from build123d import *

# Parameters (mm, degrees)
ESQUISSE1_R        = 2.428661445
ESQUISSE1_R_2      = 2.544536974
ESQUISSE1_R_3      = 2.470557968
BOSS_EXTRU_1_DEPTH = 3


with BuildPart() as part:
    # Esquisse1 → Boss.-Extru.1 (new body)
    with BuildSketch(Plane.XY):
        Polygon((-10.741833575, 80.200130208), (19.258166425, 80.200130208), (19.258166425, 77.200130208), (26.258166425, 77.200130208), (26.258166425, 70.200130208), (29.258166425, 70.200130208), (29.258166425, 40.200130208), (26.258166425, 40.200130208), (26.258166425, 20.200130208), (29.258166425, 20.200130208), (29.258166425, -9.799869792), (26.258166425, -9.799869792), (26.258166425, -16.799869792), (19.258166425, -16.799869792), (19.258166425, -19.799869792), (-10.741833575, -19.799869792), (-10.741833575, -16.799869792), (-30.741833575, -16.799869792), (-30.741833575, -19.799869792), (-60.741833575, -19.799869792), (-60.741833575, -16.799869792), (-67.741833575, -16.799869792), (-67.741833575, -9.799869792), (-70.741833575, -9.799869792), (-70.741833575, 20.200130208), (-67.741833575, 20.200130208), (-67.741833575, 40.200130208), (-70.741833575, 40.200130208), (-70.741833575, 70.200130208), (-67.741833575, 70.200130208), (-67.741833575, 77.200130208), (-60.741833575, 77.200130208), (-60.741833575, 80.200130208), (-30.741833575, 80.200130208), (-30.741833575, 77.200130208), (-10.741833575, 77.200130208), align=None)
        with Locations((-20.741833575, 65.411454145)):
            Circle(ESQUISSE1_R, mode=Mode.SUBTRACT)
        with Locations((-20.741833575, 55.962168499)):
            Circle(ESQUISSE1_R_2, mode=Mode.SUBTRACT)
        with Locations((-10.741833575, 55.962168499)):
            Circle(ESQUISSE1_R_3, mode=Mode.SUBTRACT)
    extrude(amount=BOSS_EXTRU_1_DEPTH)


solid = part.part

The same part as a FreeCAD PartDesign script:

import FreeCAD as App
import Part
import Sketcher

V = App.Vector


def add_polygon(sketch, points):
    """Adds a closed chain of lines whose ends are joined by coincident constraints."""
    first, n = sketch.GeometryCount, len(points)
    for a, b in zip(points, points[1:] + points[:1]):
        sketch.addGeometry(Part.LineSegment(App.Vector(*a, 0), App.Vector(*b, 0)), False)
    for i in range(n):
        sketch.addConstraint(Sketcher.Constraint("Coincident", first + i, 2, first + (i + 1) % n, 1))

doc = App.newDocument("Part")
params = doc.addObject("Spreadsheet::Sheet", "Params")
for row, (alias, value) in enumerate([
    ("sketch1_width", "30 mm"),
    ("sketch1_width2", "20 mm"),
    ("sketch1_width3", "7 mm"),
    ("sketch1_width4", "3 mm"),
    ("pad1_length", "3 mm"),
], start=1):
    params.set(f"A{row}", alias)
    params.set(f"B{row}", "=" + value)
    params.setAlias(f"B{row}", alias)

body = doc.addObject("PartDesign::Body", "Body")

sketch1 = doc.addObject("Sketcher::SketchObject", "Sketch")
body.addObject(sketch1)
sketch1.AttachmentSupport = (doc.XY_Plane, [""])
sketch1.MapMode = "FlatFace"
add_polygon(sketch1, [(19.3, 80.2), (-10.7, 80.2), (-10.7, 77.2), (-30.7, 77.2), (-30.7, 80.2), (-60.7, 80.2), (-60.7, 77.2), (-67.7, 77.2), (-67.7, 70.2), (-70.7, 70.2), (-70.7, 40.2), (-67.7, 40.2), (-67.7, 20.2), (-70.7, 20.2), (-70.7, -9.8), (-67.7, -9.8), (-67.7, -16.8), (-60.7, -16.8), (-60.7, -19.8), (-30.7, -19.8), (-30.7, -16.8), (-10.7, -16.8), (-10.7, -19.8), (19.3, -19.8), (19.3, -16.8), (26.3, -16.8), (26.3, -9.8), (29.3, -9.8), (29.3, 20.2), (26.3, 20.2), (26.3, 40.2), (29.3, 40.2), (29.3, 70.2), (26.3, 70.2), (26.3, 77.2), (19.3, 77.2)])
sketch1.addGeometry(Part.Circle(V(-10.7, 56, 0), V(0, 0, 1), 2.5), False)
sketch1.addGeometry(Part.Circle(V(-20.7, 56, 0), V(0, 0, 1), 2.5), False)
sketch1.addGeometry(Part.Circle(V(-20.7, 65.4, 0), V(0, 0, 1), 2.4), False)
sketch1.addConstraint([
    Sketcher.Constraint("Horizontal", 0),
    Sketcher.Constraint("Vertical", 1),
    Sketcher.Constraint("Horizontal", 2),
    Sketcher.Constraint("Vertical", 3),
    Sketcher.Constraint("Horizontal", 4),
    Sketcher.Constraint("Vertical", 5),
    Sketcher.Constraint("Horizontal", 6),
    Sketcher.Constraint("Vertical", 7),
    Sketcher.Constraint("Horizontal", 8),
    Sketcher.Constraint("Vertical", 9),
    Sketcher.Constraint("Horizontal", 10),
    Sketcher.Constraint("Vertical", 11),
    Sketcher.Constraint("Horizontal", 12),
    Sketcher.Constraint("Vertical", 13),
    Sketcher.Constraint("Horizontal", 14),
    Sketcher.Constraint("Vertical", 15),
    Sketcher.Constraint("Horizontal", 16),
    Sketcher.Constraint("Vertical", 17),
    Sketcher.Constraint("Horizontal", 18),
    Sketcher.Constraint("Vertical", 19),
    Sketcher.Constraint("Horizontal", 20),
    Sketcher.Constraint("Vertical", 21),
    Sketcher.Constraint("Horizontal", 22),
    Sketcher.Constraint("Vertical", 23),
    Sketcher.Constraint("Horizontal", 24),
    Sketcher.Constraint("Vertical", 25),
    Sketcher.Constraint("Horizontal", 26),
    Sketcher.Constraint("Vertical", 27),
    Sketcher.Constraint("Horizontal", 28),
    Sketcher.Constraint("Vertical", 29),
    Sketcher.Constraint("Horizontal", 30),
    Sketcher.Constraint("Vertical", 31),
    Sketcher.Constraint("Horizontal", 32),
    Sketcher.Constraint("Vertical", 33),
    Sketcher.Constraint("Horizontal", 34),
    Sketcher.Constraint("Vertical", 35),
    Sketcher.Constraint("Horizontal", 36, 3, 37, 3),
    Sketcher.Constraint("Horizontal", 0, 2, 3, 2),
    Sketcher.Constraint("Horizontal", 2, 2, 5, 2),
    Sketcher.Constraint("Horizontal", 16, 2, 19, 2),
    Sketcher.Constraint("Horizontal", 18, 2, 21, 2),
    Sketcher.Constraint("Horizontal", 20, 2, 23, 2),
    Sketcher.Constraint("Horizontal", 14, 2, 25, 2),
    Sketcher.Constraint("Horizontal", 12, 2, 27, 2),
    Sketcher.Constraint("Horizontal", 10, 2, 29, 2),
    Sketcher.Constraint("Horizontal", 8, 2, 31, 2),
    Sketcher.Constraint("Horizontal", 6, 2, 33, 2),
    Sketcher.Constraint("Vertical", 37, 3, 38, 3),
    Sketcher.Constraint("Vertical", 36, 3, 0, 2),
    Sketcher.Constraint("Vertical", 7, 2, 10, 2),
    Sketcher.Constraint("Vertical", 9, 2, 12, 2),
    Sketcher.Constraint("Vertical", 11, 2, 14, 2),
    Sketcher.Constraint("Vertical", 5, 2, 16, 2),
    Sketcher.Constraint("Vertical", 3, 2, 18, 2),
    Sketcher.Constraint("Vertical", 1, 2, 20, 2),
    Sketcher.Constraint("Vertical", 25, 2, 28, 2),
    Sketcher.Constraint("Vertical", 27, 2, 30, 2),
    Sketcher.Constraint("Vertical", 29, 2, 32, 2),
    Sketcher.Constraint("Vertical", 23, 2, 34, 2),
    Sketcher.Constraint("Equal", 0, 4),
    Sketcher.Constraint("Equal", 16, 24),
    Sketcher.Constraint("Equal", 14, 26),
    Sketcher.Constraint("Equal", 32, 1),
    Sketcher.Constraint("Equal", 34, 7),
    Sketcher.Constraint("Equal", 22, 9),
    Sketcher.Constraint("Equal", 20, 11),
    Sketcher.Constraint("Equal", 9, 13),
    Sketcher.Constraint("Equal", 7, 15),
    Sketcher.Constraint("Equal", 5, 17),
    Sketcher.Constraint("DistanceX", 0, 2, 0, 1, 30.0),
    Sketcher.Constraint("DistanceX", 2, 2, 2, 1, 20.0),
    Sketcher.Constraint("DistanceX", 6, 2, 6, 1, 7.0),
    Sketcher.Constraint("DistanceX", 8, 2, 8, 1, 3.0),
    Sketcher.Constraint("DistanceX", 37, 3, 36, 3, 10.0),
    Sketcher.Constraint("Diameter", 36, 4.941116),
    Sketcher.Constraint("Diameter", 37, 5.089074),
    Sketcher.Constraint("Diameter", 38, 4.857323),
    Sketcher.Constraint("DistanceY", -1, 1, 36, 3, 55.962168),
    Sketcher.Constraint("DistanceY", -1, 1, 0, 2, 80.20013),
    Sketcher.Constraint("DistanceX", 36, 3, -1, 1, 10.741834),
    Sketcher.Constraint("DistanceY", -1, 1, 38, 3, 65.411454),
])
sketch1.setExpression("Constraints[105]", "Params.sketch1_width")
sketch1.setExpression("Constraints[106]", "Params.sketch1_width2")
sketch1.setExpression("Constraints[107]", "Params.sketch1_width3")
sketch1.setExpression("Constraints[108]", "Params.sketch1_width4")
pad1 = doc.addObject("PartDesign::Pad", "Pad")
body.addObject(pad1)
pad1.Profile = sketch1
pad1.setExpression("Length", "Params.pad1_length")

doc.recompute()
